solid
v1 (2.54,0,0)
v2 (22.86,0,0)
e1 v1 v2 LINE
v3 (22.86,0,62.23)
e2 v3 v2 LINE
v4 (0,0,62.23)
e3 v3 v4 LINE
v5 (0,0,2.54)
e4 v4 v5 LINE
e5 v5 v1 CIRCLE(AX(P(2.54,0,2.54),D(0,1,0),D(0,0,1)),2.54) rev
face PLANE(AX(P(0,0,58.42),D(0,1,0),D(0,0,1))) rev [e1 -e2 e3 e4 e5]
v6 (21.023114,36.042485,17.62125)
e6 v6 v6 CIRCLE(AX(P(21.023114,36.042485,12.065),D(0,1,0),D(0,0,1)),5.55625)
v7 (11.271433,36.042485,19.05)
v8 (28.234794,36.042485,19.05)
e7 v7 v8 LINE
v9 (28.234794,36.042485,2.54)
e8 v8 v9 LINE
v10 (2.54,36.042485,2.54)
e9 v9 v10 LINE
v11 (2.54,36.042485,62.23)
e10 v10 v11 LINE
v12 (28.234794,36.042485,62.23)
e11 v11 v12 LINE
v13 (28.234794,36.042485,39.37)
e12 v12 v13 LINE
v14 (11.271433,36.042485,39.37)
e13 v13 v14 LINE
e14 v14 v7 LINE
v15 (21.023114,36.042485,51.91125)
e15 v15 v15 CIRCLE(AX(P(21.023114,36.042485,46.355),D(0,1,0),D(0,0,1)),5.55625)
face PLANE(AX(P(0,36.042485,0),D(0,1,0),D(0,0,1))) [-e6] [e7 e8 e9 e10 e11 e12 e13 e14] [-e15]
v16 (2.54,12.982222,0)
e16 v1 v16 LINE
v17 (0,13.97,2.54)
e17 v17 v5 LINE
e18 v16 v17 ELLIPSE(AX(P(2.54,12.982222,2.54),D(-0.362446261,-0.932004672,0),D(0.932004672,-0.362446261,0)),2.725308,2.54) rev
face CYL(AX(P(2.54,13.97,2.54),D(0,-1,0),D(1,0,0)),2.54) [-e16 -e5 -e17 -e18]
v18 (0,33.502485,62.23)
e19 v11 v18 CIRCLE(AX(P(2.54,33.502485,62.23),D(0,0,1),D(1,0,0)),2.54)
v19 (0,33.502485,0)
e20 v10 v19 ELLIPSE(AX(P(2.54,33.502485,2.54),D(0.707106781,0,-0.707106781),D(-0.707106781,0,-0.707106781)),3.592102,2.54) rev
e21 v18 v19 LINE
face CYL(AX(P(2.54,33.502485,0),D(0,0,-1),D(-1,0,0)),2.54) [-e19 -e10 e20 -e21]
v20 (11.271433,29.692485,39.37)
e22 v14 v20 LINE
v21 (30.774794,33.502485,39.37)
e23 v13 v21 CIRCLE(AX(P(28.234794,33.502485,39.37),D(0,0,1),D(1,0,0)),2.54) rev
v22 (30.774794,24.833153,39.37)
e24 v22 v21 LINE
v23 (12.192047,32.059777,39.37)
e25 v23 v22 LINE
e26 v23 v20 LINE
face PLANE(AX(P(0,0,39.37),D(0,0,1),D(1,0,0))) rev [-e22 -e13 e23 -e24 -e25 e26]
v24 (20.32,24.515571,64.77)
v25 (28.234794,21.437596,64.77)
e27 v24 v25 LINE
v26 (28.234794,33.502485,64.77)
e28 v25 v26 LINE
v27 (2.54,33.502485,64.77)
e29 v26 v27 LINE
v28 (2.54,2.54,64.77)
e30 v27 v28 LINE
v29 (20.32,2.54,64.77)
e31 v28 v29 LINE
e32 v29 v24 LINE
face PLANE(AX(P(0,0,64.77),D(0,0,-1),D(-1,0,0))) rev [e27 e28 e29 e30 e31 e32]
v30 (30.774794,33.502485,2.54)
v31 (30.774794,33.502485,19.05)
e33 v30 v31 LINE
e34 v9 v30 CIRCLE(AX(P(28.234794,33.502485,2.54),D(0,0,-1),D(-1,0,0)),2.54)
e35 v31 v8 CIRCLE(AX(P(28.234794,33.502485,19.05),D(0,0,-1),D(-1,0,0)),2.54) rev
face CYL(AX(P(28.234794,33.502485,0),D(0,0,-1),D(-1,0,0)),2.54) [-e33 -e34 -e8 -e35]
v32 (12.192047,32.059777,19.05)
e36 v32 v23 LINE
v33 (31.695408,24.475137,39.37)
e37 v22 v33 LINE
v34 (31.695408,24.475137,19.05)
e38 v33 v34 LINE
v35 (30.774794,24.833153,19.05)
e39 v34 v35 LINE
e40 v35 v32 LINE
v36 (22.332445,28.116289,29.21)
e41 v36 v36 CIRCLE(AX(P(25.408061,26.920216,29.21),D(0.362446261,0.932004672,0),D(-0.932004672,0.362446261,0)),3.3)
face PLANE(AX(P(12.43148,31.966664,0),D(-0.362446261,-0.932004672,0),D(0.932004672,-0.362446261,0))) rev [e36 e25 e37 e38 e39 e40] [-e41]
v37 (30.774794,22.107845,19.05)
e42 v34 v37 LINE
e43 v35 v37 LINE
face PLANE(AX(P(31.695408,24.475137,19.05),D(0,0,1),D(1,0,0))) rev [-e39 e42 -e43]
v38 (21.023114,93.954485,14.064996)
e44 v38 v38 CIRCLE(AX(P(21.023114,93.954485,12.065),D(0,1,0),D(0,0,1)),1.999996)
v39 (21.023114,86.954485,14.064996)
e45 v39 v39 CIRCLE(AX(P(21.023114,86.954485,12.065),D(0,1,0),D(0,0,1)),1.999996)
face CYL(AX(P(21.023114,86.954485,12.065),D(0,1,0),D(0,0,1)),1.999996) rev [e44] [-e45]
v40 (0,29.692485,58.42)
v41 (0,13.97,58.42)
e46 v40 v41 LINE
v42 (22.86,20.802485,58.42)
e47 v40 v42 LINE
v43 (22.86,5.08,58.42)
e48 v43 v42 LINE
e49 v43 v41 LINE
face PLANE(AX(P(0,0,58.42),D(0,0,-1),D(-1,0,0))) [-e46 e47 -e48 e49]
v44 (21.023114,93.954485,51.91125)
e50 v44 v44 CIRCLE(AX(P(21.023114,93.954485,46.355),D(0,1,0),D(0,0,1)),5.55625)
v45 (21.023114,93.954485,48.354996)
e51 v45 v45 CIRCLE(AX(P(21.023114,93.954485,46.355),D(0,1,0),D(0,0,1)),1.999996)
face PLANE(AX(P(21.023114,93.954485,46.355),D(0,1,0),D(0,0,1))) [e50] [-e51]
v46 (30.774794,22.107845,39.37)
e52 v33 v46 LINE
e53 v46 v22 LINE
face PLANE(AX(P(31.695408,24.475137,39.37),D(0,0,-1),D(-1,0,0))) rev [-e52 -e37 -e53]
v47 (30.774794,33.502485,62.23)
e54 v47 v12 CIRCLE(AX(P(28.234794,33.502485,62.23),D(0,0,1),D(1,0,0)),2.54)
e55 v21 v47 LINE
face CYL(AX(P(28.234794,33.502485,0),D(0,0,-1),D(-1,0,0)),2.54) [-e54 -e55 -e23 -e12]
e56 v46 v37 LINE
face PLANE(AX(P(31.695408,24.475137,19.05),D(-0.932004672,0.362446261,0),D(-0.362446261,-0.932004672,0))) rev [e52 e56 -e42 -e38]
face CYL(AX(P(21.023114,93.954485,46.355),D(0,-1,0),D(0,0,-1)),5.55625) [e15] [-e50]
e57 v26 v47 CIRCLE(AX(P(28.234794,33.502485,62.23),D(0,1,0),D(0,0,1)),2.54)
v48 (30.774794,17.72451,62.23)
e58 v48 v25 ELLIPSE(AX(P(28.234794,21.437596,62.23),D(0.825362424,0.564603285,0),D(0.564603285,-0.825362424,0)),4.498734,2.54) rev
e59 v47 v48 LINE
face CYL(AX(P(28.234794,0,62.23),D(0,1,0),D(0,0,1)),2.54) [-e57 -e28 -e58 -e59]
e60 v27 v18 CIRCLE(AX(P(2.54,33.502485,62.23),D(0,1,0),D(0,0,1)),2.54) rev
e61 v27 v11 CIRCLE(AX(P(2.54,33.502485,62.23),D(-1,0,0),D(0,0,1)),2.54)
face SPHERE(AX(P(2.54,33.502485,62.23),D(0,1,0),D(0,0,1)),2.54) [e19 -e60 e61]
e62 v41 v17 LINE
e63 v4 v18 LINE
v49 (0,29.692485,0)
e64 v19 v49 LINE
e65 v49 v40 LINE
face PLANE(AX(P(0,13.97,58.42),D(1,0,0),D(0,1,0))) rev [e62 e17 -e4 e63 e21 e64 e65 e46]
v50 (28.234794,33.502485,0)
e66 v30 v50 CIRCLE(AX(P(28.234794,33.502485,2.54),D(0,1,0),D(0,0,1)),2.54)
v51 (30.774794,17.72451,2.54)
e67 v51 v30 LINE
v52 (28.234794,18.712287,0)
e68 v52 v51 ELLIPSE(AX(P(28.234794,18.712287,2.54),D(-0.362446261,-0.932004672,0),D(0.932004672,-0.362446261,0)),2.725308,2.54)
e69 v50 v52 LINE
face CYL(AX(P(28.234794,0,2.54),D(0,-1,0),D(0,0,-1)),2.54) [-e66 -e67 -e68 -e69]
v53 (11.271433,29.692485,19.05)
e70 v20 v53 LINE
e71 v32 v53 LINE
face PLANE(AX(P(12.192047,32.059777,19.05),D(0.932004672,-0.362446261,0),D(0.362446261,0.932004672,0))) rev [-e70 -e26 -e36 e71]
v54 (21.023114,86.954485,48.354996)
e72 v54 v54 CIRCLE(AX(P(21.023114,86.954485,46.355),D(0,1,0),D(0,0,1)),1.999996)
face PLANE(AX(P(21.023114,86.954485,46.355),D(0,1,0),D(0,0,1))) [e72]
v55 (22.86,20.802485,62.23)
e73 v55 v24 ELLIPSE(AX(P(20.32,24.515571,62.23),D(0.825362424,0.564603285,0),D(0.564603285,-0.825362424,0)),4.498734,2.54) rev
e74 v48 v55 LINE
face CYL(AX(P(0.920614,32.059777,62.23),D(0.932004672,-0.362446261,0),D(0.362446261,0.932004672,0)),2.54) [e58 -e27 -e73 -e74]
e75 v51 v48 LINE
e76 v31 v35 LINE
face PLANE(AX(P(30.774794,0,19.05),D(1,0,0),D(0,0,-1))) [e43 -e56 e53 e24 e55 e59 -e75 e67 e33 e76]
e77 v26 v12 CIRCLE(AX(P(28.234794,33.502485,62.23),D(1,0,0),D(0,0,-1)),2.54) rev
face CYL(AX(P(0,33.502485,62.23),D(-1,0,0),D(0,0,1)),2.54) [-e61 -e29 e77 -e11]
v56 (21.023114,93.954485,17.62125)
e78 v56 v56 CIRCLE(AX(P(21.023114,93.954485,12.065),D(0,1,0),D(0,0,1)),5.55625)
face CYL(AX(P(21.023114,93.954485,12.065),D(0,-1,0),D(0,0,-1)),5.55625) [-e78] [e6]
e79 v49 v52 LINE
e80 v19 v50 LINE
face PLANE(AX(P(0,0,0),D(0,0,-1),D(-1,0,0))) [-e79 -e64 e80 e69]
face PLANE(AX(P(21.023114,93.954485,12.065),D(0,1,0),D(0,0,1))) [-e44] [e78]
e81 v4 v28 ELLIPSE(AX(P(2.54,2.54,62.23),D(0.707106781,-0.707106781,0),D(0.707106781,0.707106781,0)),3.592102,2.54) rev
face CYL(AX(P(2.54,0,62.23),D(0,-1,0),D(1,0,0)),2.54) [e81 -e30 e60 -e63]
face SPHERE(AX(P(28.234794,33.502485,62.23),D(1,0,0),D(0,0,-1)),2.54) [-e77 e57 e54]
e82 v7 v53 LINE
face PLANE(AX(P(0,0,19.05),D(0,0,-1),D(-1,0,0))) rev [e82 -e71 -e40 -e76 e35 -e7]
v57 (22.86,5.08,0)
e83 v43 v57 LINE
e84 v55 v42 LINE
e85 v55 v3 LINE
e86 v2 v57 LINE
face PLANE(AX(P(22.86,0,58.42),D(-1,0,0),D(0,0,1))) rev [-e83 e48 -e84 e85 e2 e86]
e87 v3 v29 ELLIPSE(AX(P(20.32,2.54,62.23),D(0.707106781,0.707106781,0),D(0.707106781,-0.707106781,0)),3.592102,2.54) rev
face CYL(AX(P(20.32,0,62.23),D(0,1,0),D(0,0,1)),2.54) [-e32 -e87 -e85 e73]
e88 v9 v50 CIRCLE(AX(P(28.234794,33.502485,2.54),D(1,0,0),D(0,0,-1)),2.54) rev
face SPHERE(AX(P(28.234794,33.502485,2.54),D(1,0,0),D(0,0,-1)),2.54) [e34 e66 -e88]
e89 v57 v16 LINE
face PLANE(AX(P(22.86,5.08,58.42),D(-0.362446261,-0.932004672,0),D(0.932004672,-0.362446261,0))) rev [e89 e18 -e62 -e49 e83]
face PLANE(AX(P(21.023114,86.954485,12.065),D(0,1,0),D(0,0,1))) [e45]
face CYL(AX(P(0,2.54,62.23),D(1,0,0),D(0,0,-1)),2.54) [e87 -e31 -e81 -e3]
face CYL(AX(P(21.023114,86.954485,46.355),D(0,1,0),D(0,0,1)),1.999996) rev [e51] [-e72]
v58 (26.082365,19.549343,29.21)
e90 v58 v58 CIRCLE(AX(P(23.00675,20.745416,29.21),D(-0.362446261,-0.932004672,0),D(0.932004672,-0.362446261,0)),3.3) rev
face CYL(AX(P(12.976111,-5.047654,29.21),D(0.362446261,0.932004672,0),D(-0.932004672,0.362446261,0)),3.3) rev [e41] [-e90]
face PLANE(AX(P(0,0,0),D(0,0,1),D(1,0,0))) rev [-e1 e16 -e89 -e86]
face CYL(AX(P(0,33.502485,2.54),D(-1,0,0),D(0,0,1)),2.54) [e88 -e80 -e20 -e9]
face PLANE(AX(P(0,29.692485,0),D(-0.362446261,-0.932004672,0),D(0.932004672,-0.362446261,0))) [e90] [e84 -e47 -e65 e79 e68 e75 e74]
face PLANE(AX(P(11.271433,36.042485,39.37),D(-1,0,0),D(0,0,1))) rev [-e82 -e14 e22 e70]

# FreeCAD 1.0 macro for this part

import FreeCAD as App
import Part
import Sketcher
from FreeCAD import Vector
Q = App.Units.Quantity


def edges_at(feature, points):
    """Names of the edges that pass closest to the given points."""
    edges = feature.Shape.Edges
    near = lambda p: min(range(len(edges)), key=lambda i: edges[i].distToShape(Part.Vertex(*p))[0])
    return sorted({f"Edge{near(p) + 1}" for p in points})


def add_polygon(sketch, points):
    """Adds a closed chain of lines whose ends are joined by coincident constraints."""
    first, n = sketch.GeometryCount, len(points)
    for a, b in zip(points, points[1:] + points[:1]):
        sketch.addGeometry(Part.LineSegment(App.Vector(*a, 0), App.Vector(*b, 0)), False)
    for i in range(n):
        sketch.addConstraint(Sketcher.Constraint("Coincident", first + i, 2, first + (i + 1) % n, 1))

doc = App.newDocument("Part")
params = doc.addObject("Spreadsheet::Sheet", "Params")
for row, (alias, value) in enumerate([
    ("sketch1_width", "0.9 in"),
    ("sketch1_height", "0.2 in"),
    ("sketch1_height2", "0.55 in"),
    ("pad1_length", "2.3 in"),
    ("sketch2_width", "0.9 in"),
    ("pad2_length", "0.25 in"),
    ("sketch3_length", "1.3 in"),
    ("pad3_length", "2.3 in"),
    ("pocket1_length", "2.3 in"),
    ("pad4_length", "0.75 in"),
    ("pocket2_length", "4.085289 mm"),
    ("pad5_length", "0.75 in"),
    ("sketch8_diameter", "0.4375 in"),
    ("pad6_length", "2.53 in"),
    ("pocket3_length", "7 mm"),
    ("sketch10_height", "0.35 in"),
    ("pad7_length", "0.25 in"),
    ("sketch11_height", "1 in"),
    ("sketch11_height2", "0.8 in"),
    ("sketch11_height3", "2.55 in"),
    ("pad8_length", "0.25 in"),
    ("fillet_radius", "0.1 in"),
    ("sketch12_height", "0.8 in"),
    ("pad9_length", "0.1 in"),
], start=1):
    params.set(f"A{row}", alias)
    params.set(f"B{row}", "=" + value)
    params.setAlias(f"B{row}", alias)

body = doc.addObject("PartDesign::Body", "Body")

sketch1 = body.newObject("Sketcher::SketchObject", "Sketch")
sketch1.AttachmentSupport = (doc.getObject("XY_Plane"), [""])
sketch1.MapMode = "FlatFace"
add_polygon(sketch1, [(0, 0), (23, 0), (23, 5), (0, 14)])
sketch1.addConstraint(Sketcher.Constraint("Horizontal", 0))
sketch1.addConstraint(Sketcher.Constraint("Vertical", 1))
sketch1.addConstraint(Sketcher.Constraint("Vertical", 3))
sketch1.addConstraint(Sketcher.Constraint("Coincident", 3, 2, -1, 1))
sketch1.addConstraint(Sketcher.Constraint("DistanceX", 0, 1, 0, 2, Q("0.9 in")))
sketch1.addConstraint(Sketcher.Constraint("DistanceY", 1, 1, 1, 2, Q("0.2 in")))
sketch1.addConstraint(Sketcher.Constraint("DistanceY", 3, 2, 3, 1, Q("0.55 in")))
sketch1.setExpression("Constraints[8]", "Params.sketch1_width")
sketch1.setExpression("Constraints[9]", "Params.sketch1_height")
sketch1.setExpression("Constraints[10]", "Params.sketch1_height2")
pad1 = body.newObject("PartDesign::Pad", "Pad")
pad1.Profile = sketch1
pad1.setExpression("Length", "Params.pad1_length")

sketch2 = body.newObject("Sketcher::SketchObject", "Sketch001")
sketch2.AttachmentSupport = (doc.getObject("XY_Plane"), [""])
sketch2.MapMode = "FlatFace"
sketch2.AttachmentOffset = App.Placement(Vector(0, 0, 2.3 * 25.4), App.Rotation())
add_polygon(sketch2, [(0, 30), (0, 0), (23, 0), (23, 30)])
sketch2.addConstraint(Sketcher.Constraint("Vertical", 0))
sketch2.addConstraint(Sketcher.Constraint("Horizontal", 1))
sketch2.addConstraint(Sketcher.Constraint("Vertical", 2))
sketch2.addConstraint(Sketcher.Constraint("Horizontal", 3))
sketch2.addConstraint(Sketcher.Constraint("Coincident", 0, 2, -1, 1))
sketch2.addConstraint(Sketcher.Constraint("DistanceX", 1, 1, 1, 2, Q("0.9 in")))
sketch2.addConstraint(Sketcher.Constraint("DistanceY", 0, 2, 0, 1, Q("29.692485 mm")))
sketch2.setExpression("Constraints[9]", "Params.sketch2_width")
pad2 = body.newObject("PartDesign::Pad", "Pad001")
pad2.Profile = sketch2
pad2.setExpression("Length", "Params.pad2_length")

sketch3 = body.newObject("Sketcher::SketchObject", "Sketch002")
sketch3.AttachmentSupport = (doc.getObject("XY_Plane"), [""])
sketch3.MapMode = "FlatFace"
sketch3.AttachmentOffset = App.Placement(Vector(0, 0, 2.3 * 25.4), App.Rotation())
add_polygon(sketch3, [(0, 30), (31, 30), (31, 18)])
sketch3.addConstraint(Sketcher.Constraint("Horizontal", 0))
sketch3.addConstraint(Sketcher.Constraint("Vertical", 1))
sketch3.addConstraint(Sketcher.Constraint("PointOnObject", 2, 2, -2))
sketch3.addConstraint(Sketcher.Constraint("Distance", 2, Q("1.3 in")))
sketch3.addConstraint(Sketcher.Constraint("DistanceX", 0, 1, 0, 2, Q("30.774794 mm")))
sketch3.addConstraint(Sketcher.Constraint("DistanceY", -1, 1, 1, 2, Q("17.72451 mm")))
sketch3.setExpression("Constraints[6]", "Params.sketch3_length")
pad3 = body.newObject("PartDesign::Pad", "Pad002")
pad3.Profile = sketch3
pad3.setExpression("Length", "Params.pad3_length")
pad3.Reversed = True

sketch4 = body.newObject("Sketcher::SketchObject", "Sketch003")
sketch4.AttachmentSupport = (doc.getObject("XY_Plane"), [""])
sketch4.MapMode = "FlatFace"
add_polygon(sketch4, [(31, 22), (11, 30), (31, 30)])
sketch4.addConstraint(Sketcher.Constraint("Horizontal", 1))
sketch4.addConstraint(Sketcher.Constraint("Vertical", 2))
sketch4.addConstraint(Sketcher.Constraint("DistanceX", 1, 1, 1, 2, Q("19.503361 mm")))
sketch4.addConstraint(Sketcher.Constraint("DistanceY", 2, 2, 2, 1, Q("7.58464 mm")))
sketch4.addConstraint(Sketcher.Constraint("DistanceX", -1, 1, 0, 2, Q("11.271433 mm")))
sketch4.addConstraint(Sketcher.Constraint("DistanceY", -1, 1, 0, 2, Q("29.692485 mm")))
pocket1 = body.newObject("PartDesign::Pocket", "Pocket")
pocket1.Profile = sketch4
pocket1.setExpression("Length", "Params.pocket1_length")
pocket1.Reversed = True

sketch5 = body.newObject("Sketcher::SketchObject", "Sketch004")
sketch5.AttachmentSupport = (doc.getObject("XY_Plane"), [""])
sketch5.MapMode = "FlatFace"
sketch5.AttachmentOffset = App.Placement(Vector(0, 0, 2.3 * 25.4), App.Rotation())
add_polygon(sketch5, [(31, 22), (31, 30), (11, 30)])
sketch5.addConstraint(Sketcher.Constraint("Vertical", 0))
sketch5.addConstraint(Sketcher.Constraint("Horizontal", 1))
sketch5.addConstraint(Sketcher.Constraint("DistanceX", 1, 2, 1, 1, Q("19.503361 mm")))
sketch5.addConstraint(Sketcher.Constraint("DistanceY", 0, 1, 0, 2, Q("7.58464 mm")))
sketch5.addConstraint(Sketcher.Constraint("DistanceX", -1, 1, 0, 2, Q("30.774794 mm")))
sketch5.addConstraint(Sketcher.Constraint("DistanceY", -1, 1, 0, 2, Q("29.692485 mm")))
pad4 = body.newObject("PartDesign::Pad", "Pad003")
pad4.Profile = sketch5
pad4.setExpression("Length", "Params.pad4_length")
pad4.Reversed = True

sketch6 = body.newObject("Sketcher::SketchObject", "Sketch005")
sketch6.Placement = App.Placement(Vector(11.510867, 29.599372, 0), App.Rotation(Vector(0.932004672, -0.362446261, 0), Vector(0, 0, -1.000000001), Vector(0.362446261, 0.932004672, 0), "ZXY"))
sketch6.addGeometry(Part.Circle(Vector(13.9, -29.2, 0), Vector(0, 0, 1), 3.3), False)
sketch6.addConstraint(Sketcher.Constraint("Diameter", 0, Q("6.6 mm")))
sketch6.addConstraint(Sketcher.Constraint("DistanceY", 0, 3, -1, 1, Q("1.15 in")))
sketch6.addConstraint(Sketcher.Constraint("DistanceX", -1, 1, 0, 3, Q("13.9233 mm")))
pocket2 = body.newObject("PartDesign::Pocket", "Pocket001")
pocket2.Profile = sketch6
pocket2.setExpression("Length", "Params.pocket2_length")
body2 = doc.addObject("PartDesign::Body", "Body001")

sketch7 = body2.newObject("Sketcher::SketchObject", "Sketch006")
sketch7.AttachmentSupport = (doc.getObject("XY_Plane001"), [""])
sketch7.MapMode = "FlatFace"
add_polygon(sketch7, [(31, 30), (31, 22), (11, 30)])
sketch7.addConstraint(Sketcher.Constraint("Vertical", 0))
sketch7.addConstraint(Sketcher.Constraint("Horizontal", 2))
sketch7.addConstraint(Sketcher.Constraint("DistanceX", 2, 1, 2, 2, Q("19.503361 mm")))
sketch7.addConstraint(Sketcher.Constraint("DistanceY", 0, 2, 0, 1, Q("7.58464 mm")))
sketch7.addConstraint(Sketcher.Constraint("DistanceX", -1, 1, 0, 2, Q("30.774794 mm")))
sketch7.addConstraint(Sketcher.Constraint("DistanceY", -1, 1, 0, 2, Q("22.107845 mm")))
pad5 = body2.newObject("PartDesign::Pad", "Pad004")
pad5.Profile = sketch7
pad5.setExpression("Length", "Params.pad5_length")
doc.recompute()

boolean = body.newObject("PartDesign::Boolean", "Boolean")
boolean.Type = "Fuse"
boolean.addObjects([body2])

sketch8 = body.newObject("Sketcher::SketchObject", "Sketch007")
sketch8.AttachmentSupport = (doc.getObject("XZ_Plane"), [""])
sketch8.MapMode = "FlatFace"
sketch8.AttachmentOffset = App.Placement(Vector(0, 0, -29.692485), App.Rotation())
sketch8.addGeometry(Part.Circle(Vector(21, 12, 0), Vector(0, 0, 1), 6), False)
sketch8.addGeometry(Part.Circle(Vector(21, 46, 0), Vector(0, 0, 1), 6), False)
sketch8.addConstraint(Sketcher.Constraint("Equal", 0, 1))
sketch8.addConstraint(Sketcher.Constraint("Vertical", 0, 3, 1, 3))
sketch8.addConstraint(Sketcher.Constraint("Diameter", 0, Q("0.4375 in")))
sketch8.addConstraint(Sketcher.Constraint("DistanceY", 0, 3, 1, 3, Q("1.35 in")))
sketch8.addConstraint(Sketcher.Constraint("DistanceY", -1, 1, 0, 3, Q("0.475 in")))
sketch8.addConstraint(Sketcher.Constraint("DistanceX", -1, 1, 0, 3, Q("21.023114 mm")))
sketch8.setExpression("Constraints[2]", "Params.sketch8_diameter")
pad6 = body.newObject("PartDesign::Pad", "Pad005")
pad6.Profile = sketch8
pad6.setExpression("Length", "Params.pad6_length")
pad6.Reversed = True

sketch9 = body.newObject("Sketcher::SketchObject", "Sketch008")
sketch9.AttachmentSupport = (doc.getObject("XZ_Plane"), [""])
sketch9.MapMode = "FlatFace"
sketch9.AttachmentOffset = App.Placement(Vector(0, 0, -93.954485), App.Rotation())
sketch9.addGeometry(Part.Circle(Vector(21, 12.1, 0), Vector(0, 0, 1), 2), False)
sketch9.addGeometry(Part.Circle(Vector(21, 46.4, 0), Vector(0, 0, 1), 2), False)
sketch9.addConstraint(Sketcher.Constraint("Equal", 0, 1))
sketch9.addConstraint(Sketcher.Constraint("Vertical", 0, 3, 1, 3))
sketch9.addConstraint(Sketcher.Constraint("DistanceY", 0, 3, 1, 3, Q("1.35 in")))
sketch9.addConstraint(Sketcher.Constraint("DistanceY", -1, 1, 0, 3, Q("0.475 in")))
sketch9.addConstraint(Sketcher.Constraint("Diameter", 0, Q("3.999992 mm")))
sketch9.addConstraint(Sketcher.Constraint("DistanceX", -1, 1, 0, 3, Q("21.023114 mm")))
pocket3 = body.newObject("PartDesign::Pocket", "Pocket002")
pocket3.Profile = sketch9
pocket3.setExpression("Length", "Params.pocket3_length")
pocket3.Reversed = True

sketch10 = body.newObject("Sketcher::SketchObject", "Sketch009")
sketch10.AttachmentSupport = (doc.getObject("XY_Plane"), [""])
sketch10.MapMode = "FlatFace"
sketch10.AttachmentOffset = App.Placement(Vector(0, 0, 2.3 * 25.4), App.Rotation())
add_polygon(sketch10, [(31, 30), (23, 30), (23, 21), (31, 18)])
sketch10.addConstraint(Sketcher.Constraint("Horizontal", 0))
sketch10.addConstraint(Sketcher.Constraint("Vertical", 1))
sketch10.addConstraint(Sketcher.Constraint("Vertical", 3))
sketch10.addConstraint(Sketcher.Constraint("DistanceY", 1, 2, 1, 1, Q("0.35 in")))
sketch10.addConstraint(Sketcher.Constraint("DistanceX", -1, 1, 0, 2, Q("0.9 in")))
sketch10.addConstraint(Sketcher.Constraint("DistanceX", 0, 2, 0, 1, Q("7.914794 mm")))
sketch10.addConstraint(Sketcher.Constraint("DistanceY", 3, 1, 3, 2, Q("11.967976 mm")))
sketch10.addConstraint(Sketcher.Constraint("DistanceY", -1, 1, 2, 2, Q("17.72451 mm")))
sketch10.setExpression("Constraints[7]", "Params.sketch10_height")
pad7 = body.newObject("PartDesign::Pad", "Pad006")
pad7.Profile = sketch10
pad7.setExpression("Length", "Params.pad7_length")

sketch11 = body.newObject("Sketcher::SketchObject", "Sketch010")
sketch11.AttachmentSupport = (doc.getObject("XZ_Plane"), [""])
sketch11.MapMode = "FlatFace"
sketch11.AttachmentOffset = App.Placement(Vector(0, 0, -29.692485), App.Rotation())
add_polygon(sketch11, [(0, 0), (0, 65), (31, 65), (31, 39), (11, 39), (11, 19), (31, 19), (31, 0)])
sketch11.addConstraint(Sketcher.Constraint("Vertical", 0))
sketch11.addConstraint(Sketcher.Constraint("Horizontal", 1))
sketch11.addConstraint(Sketcher.Constraint("Vertical", 2))
sketch11.addConstraint(Sketcher.Constraint("Horizontal", 3))
sketch11.addConstraint(Sketcher.Constraint("Vertical", 4))
sketch11.addConstraint(Sketcher.Constraint("Horizontal", 5))
sketch11.addConstraint(Sketcher.Constraint("Vertical", 6))
sketch11.addConstraint(Sketcher.Constraint("Horizontal", 7))
sketch11.addConstraint(Sketcher.Constraint("Coincident", 7, 2, -1, 1))
sketch11.addConstraint(Sketcher.Constraint("Vertical", 2, 2, 5, 2))
sketch11.addConstraint(Sketcher.Constraint("DistanceY", 2, 2, 2, 1, Q("1 in")))
sketch11.addConstraint(Sketcher.Constraint("DistanceY", 4, 2, 4, 1, Q("0.8 in")))
sketch11.addConstraint(Sketcher.Constraint("DistanceY", 0, 1, 0, 2, Q("2.55 in")))
sketch11.addConstraint(Sketcher.Constraint("DistanceX", 3, 2, 3, 1, Q("19.503361 mm")))
sketch11.addConstraint(Sketcher.Constraint("DistanceX", 1, 1, 1, 2, Q("30.774794 mm")))
sketch11.setExpression("Constraints[18]", "Params.sketch11_height")
sketch11.setExpression("Constraints[19]", "Params.sketch11_height2")
sketch11.setExpression("Constraints[20]", "Params.sketch11_height3")
pad8 = body.newObject("PartDesign::Pad", "Pad007")
pad8.Profile = sketch11
pad8.setExpression("Length", "Params.pad8_length")
pad8.Reversed = True
doc.recompute()

fillet = body.newObject("PartDesign::Fillet", "Fillet")
fillet.Base = (pad8, edges_at(pad8, [
    (0, 18.021, 64.77),
    (15.387, 36.042, 64.77),
    (30.775, 26.883, 0),
    (30.775, 26.883, 64.77),
    (26.817, 19.263, 64.77),
    (22.86, 10.401, 64.77),
    (11.43, 0, 64.77),
    (0, 6.985, 0),
    (15.387, 36.042, 0),
    (0, 36.042, 32.385),
    (30.775, 36.042, 52.07),
    (30.775, 36.042, 9.525),
]))
fillet.setExpression("Radius", "Params.fillet_radius")

sketch12 = body.newObject("Sketcher::SketchObject", "Sketch011")
sketch12.Placement = App.Placement(Vector(12.43148, 31.966664, 0), App.Rotation(Vector(0.932004672, -0.362446261, 0), Vector(0, 0, -1.000000001), Vector(0.362446261, 0.932004672, 0), "ZXY"))
add_polygon(sketch12, [(-0.3, -19.1), (-0.3, -39.4), (20.7, -39.4), (20.7, -19.1)])
sketch12.addGeometry(Part.Circle(Vector(13.9, -29.2, 0), Vector(0, 0, 1), 3.3), False)
sketch12.addConstraint(Sketcher.Constraint("Vertical", 0))
sketch12.addConstraint(Sketcher.Constraint("Horizontal", 1))
sketch12.addConstraint(Sketcher.Constraint("Vertical", 2))
sketch12.addConstraint(Sketcher.Constraint("Horizontal", 3))
sketch12.addConstraint(Sketcher.Constraint("DistanceY", 0, 2, 0, 1, Q("0.8 in")))
sketch12.addConstraint(Sketcher.Constraint("DistanceY", 0, 2, 4, 3, Q("0.4 in")))
sketch12.addConstraint(Sketcher.Constraint("Diameter", 4, Q("6.6 mm")))
sketch12.addConstraint(Sketcher.Constraint("DistanceY", 4, 3, -1, 1, Q("1.15 in")))
sketch12.addConstraint(Sketcher.Constraint("DistanceX", -1, 1, 4, 3, Q("13.9233 mm")))
sketch12.addConstraint(Sketcher.Constraint("DistanceX", 0, 2, -1, 1, Q("0.256902 mm")))
sketch12.addConstraint(Sketcher.Constraint("DistanceX", 1, 1, 1, 2, Q("20.926248 mm")))
sketch12.setExpression("Constraints[8]", "Params.sketch12_height")
pad9 = body.newObject("PartDesign::Pad", "Pad008")
pad9.Profile = sketch12
pad9.setExpression("Length", "Params.pad9_length")
pad9.Reversed = True

doc.recompute()
